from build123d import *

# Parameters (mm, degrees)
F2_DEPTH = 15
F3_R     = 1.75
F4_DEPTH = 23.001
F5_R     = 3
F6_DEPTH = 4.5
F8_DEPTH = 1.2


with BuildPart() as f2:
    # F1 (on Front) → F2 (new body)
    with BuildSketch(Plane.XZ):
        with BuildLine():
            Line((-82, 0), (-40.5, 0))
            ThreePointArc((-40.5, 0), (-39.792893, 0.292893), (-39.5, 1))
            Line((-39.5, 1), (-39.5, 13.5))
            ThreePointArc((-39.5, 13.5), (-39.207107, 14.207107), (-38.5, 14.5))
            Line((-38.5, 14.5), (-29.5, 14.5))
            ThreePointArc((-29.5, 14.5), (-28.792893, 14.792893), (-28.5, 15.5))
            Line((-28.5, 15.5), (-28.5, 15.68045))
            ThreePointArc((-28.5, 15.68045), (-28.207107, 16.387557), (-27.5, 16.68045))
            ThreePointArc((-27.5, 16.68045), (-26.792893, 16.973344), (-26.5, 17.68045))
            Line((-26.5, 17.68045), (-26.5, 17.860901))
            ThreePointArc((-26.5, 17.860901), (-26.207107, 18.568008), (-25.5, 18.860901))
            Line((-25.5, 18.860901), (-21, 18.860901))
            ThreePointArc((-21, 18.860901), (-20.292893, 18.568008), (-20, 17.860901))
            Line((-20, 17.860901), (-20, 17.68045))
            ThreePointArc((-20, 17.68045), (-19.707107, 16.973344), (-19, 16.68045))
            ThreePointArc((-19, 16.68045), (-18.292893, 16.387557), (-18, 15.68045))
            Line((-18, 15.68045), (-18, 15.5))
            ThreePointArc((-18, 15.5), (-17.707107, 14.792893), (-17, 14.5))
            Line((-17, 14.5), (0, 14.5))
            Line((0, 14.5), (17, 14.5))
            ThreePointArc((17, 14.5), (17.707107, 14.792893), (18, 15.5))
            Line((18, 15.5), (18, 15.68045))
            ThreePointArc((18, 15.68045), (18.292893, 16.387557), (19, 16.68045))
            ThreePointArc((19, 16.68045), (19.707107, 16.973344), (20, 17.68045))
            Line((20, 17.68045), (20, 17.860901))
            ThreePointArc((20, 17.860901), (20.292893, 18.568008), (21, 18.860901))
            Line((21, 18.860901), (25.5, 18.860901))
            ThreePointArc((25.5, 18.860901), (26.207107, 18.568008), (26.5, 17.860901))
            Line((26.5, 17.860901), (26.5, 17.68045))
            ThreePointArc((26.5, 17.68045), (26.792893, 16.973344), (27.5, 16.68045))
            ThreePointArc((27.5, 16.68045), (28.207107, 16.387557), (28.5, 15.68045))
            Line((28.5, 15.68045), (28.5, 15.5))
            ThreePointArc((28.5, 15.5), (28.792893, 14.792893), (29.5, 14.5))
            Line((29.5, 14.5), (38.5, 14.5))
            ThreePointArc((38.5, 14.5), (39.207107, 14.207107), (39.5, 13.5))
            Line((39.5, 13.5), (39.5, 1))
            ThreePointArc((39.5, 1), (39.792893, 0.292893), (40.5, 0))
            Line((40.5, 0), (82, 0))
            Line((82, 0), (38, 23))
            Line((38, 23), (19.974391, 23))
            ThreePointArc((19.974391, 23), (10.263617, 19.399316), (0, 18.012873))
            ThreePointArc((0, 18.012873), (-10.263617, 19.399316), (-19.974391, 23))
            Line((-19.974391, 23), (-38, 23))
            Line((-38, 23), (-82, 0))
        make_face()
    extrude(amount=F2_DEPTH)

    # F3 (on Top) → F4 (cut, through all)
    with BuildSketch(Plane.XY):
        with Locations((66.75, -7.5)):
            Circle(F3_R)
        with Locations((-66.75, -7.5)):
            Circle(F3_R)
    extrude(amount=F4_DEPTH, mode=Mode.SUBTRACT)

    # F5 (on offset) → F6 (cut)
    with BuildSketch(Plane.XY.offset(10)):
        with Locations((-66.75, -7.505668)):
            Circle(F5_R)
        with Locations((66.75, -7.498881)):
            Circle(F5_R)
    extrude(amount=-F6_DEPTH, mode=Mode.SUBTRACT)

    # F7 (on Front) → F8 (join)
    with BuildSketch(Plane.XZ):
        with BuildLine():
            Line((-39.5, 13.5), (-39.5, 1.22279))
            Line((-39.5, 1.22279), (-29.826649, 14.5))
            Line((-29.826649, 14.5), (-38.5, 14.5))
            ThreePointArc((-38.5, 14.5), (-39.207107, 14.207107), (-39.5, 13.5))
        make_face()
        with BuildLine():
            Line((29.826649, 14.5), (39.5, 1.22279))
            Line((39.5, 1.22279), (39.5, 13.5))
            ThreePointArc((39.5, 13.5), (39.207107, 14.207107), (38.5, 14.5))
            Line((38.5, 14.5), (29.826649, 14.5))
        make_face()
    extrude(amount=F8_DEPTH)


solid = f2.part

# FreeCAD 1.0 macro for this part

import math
import FreeCAD as App
import Part
import Sketcher

V = App.Vector

doc = App.newDocument("Part")
body = doc.addObject("PartDesign::Body", "Body")

sketch1 = body.newObject("Sketcher::SketchObject", "Sketch")
sketch1.AttachmentSupport = (doc.getObject("XZ_Plane"), [""])
sketch1.MapMode = "FlatFace"
sketch1.addGeometry([
    Part.LineSegment(V(-82, 0, 0), V(-40.5, 0, 0)),
    Part.ArcOfCircle(Part.Circle(V(-40.499999, 0.999999, 0), V(0, 0, 1), 0.999999), math.radians(-90.000043), math.radians(0.000043)),
    Part.LineSegment(V(-39.5, 1, 0), V(-39.5, 13.5, 0)),
    Part.ArcOfCircle(Part.Circle(V(-38.500001, 13.500001, 0), V(0, 0, 1), 0.999999), math.radians(89.999957), math.radians(180.000043)),
    Part.LineSegment(V(-38.5, 14.5, 0), V(-29.5, 14.5, 0)),
    Part.ArcOfCircle(Part.Circle(V(-29.499999, 15.499999, 0), V(0, 0, 1), 0.999999), math.radians(-90.000043), math.radians(0.000043)),
    Part.LineSegment(V(-28.5, 15.5, 0), V(-28.5, 15.68045, 0)),
    Part.ArcOfCircle(Part.Circle(V(-27.500001, 15.680451, 0), V(0, 0, 1), 0.999999), math.radians(89.999957), math.radians(180.000043)),
    Part.ArcOfCircle(Part.Circle(V(-27.500001, 17.680451, 0), V(0, 0, 1), 1.000001), math.radians(-89.999945), math.radians(-0.000055)),
    Part.LineSegment(V(-26.5, 17.68045, 0), V(-26.5, 17.860901, 0)),
    Part.ArcOfCircle(Part.Circle(V(-25.500001, 17.860902, 0), V(0, 0, 1), 0.999999), math.radians(89.999957), math.radians(180.000043)),
    Part.LineSegment(V(-25.5, 18.860901, 0), V(-21, 18.860901, 0)),
    Part.ArcOfCircle(Part.Circle(V(-20.999999, 17.860902, 0), V(0, 0, 1), 0.999999), math.radians(-0.000043), math.radians(90.000043)),
    Part.LineSegment(V(-20, 17.860901, 0), V(-20, 17.68045, 0)),
    Part.ArcOfCircle(Part.Circle(V(-18.999999, 17.680451, 0), V(0, 0, 1), 1.000001), math.radians(-179.999945), math.radians(-90.000055)),
    Part.ArcOfCircle(Part.Circle(V(-18.999999, 15.680451, 0), V(0, 0, 1), 0.999999), math.radians(-0.000043), math.radians(90.000043)),
    Part.LineSegment(V(-18, 15.68045, 0), V(-18, 15.5, 0)),
    Part.ArcOfCircle(Part.Circle(V(-17.000001, 15.499999, 0), V(0, 0, 1), 0.999999), math.radians(179.999957), math.radians(270.000043)),
    Part.LineSegment(V(-17, 14.5, 0), V(17, 14.5, 0)),
    Part.ArcOfCircle(Part.Circle(V(17.000001, 15.499999, 0), V(0, 0, 1), 0.999999), math.radians(-90.000043), math.radians(0.000043)),
    Part.LineSegment(V(18, 15.5, 0), V(18, 15.68045, 0)),
    Part.ArcOfCircle(Part.Circle(V(18.999999, 15.680451, 0), V(0, 0, 1), 0.999999), math.radians(89.999957), math.radians(180.000043)),
    Part.ArcOfCircle(Part.Circle(V(18.999999, 17.680451, 0), V(0, 0, 1), 1.000001), math.radians(-89.999945), math.radians(-0.000055)),
    Part.LineSegment(V(20, 17.68045, 0), V(20, 17.860901, 0)),
    Part.ArcOfCircle(Part.Circle(V(20.999999, 17.860902, 0), V(0, 0, 1), 0.999999), math.radians(89.999957), math.radians(180.000043)),
    Part.LineSegment(V(21, 18.860901, 0), V(25.5, 18.860901, 0)),
    Part.ArcOfCircle(Part.Circle(V(25.500001, 17.860902, 0), V(0, 0, 1), 0.999999), math.radians(-0.000043), math.radians(90.000043)),
    Part.LineSegment(V(26.5, 17.860901, 0), V(26.5, 17.68045, 0)),
    Part.ArcOfCircle(Part.Circle(V(27.500001, 17.680451, 0), V(0, 0, 1), 1.000001), math.radians(-179.999945), math.radians(-90.000055)),
    Part.ArcOfCircle(Part.Circle(V(27.500001, 15.680451, 0), V(0, 0, 1), 0.999999), math.radians(-0.000043), math.radians(90.000043)),
    Part.LineSegment(V(28.5, 15.68045, 0), V(28.5, 15.5, 0)),
    Part.ArcOfCircle(Part.Circle(V(29.499999, 15.499999, 0), V(0, 0, 1), 0.999999), math.radians(179.999957), math.radians(270.000043)),
    Part.LineSegment(V(29.5, 14.5, 0), V(38.5, 14.5, 0)),
    Part.ArcOfCircle(Part.Circle(V(38.500001, 13.500001, 0), V(0, 0, 1), 0.999999), math.radians(-0.000043), math.radians(90.000043)),
    Part.LineSegment(V(39.5, 13.5, 0), V(39.5, 1, 0)),
    Part.ArcOfCircle(Part.Circle(V(40.499999, 0.999999, 0), V(0, 0, 1), 0.999999), math.radians(179.999957), math.radians(270.000043)),
    Part.LineSegment(V(40.5, 0, 0), V(82, 0, 0)),
    Part.LineSegment(V(82, 0, 0), V(38, 23, 0)),
    Part.LineSegment(V(38, 23, 0), V(19.974391, 23, 0)),
    Part.ArcOfCircle(Part.Circle(V(-1.121656, 64.999496, 0), V(0, 0, 1), 47.00001), math.radians(-88.632506), math.radians(-63.329949)),
    Part.ArcOfCircle(Part.Circle(V(1.121656, 64.999496, 0), V(0, 0, 1), 47.00001), math.radians(-116.670051), math.radians(-91.367494)),
    Part.LineSegment(V(-19.974391, 23, 0), V(-38, 23, 0)),
    Part.LineSegment(V(-38, 23, 0), V(-82, 0, 0)),
], False)
sketch1.addConstraint([
    Sketcher.Constraint("Tangent", 0, 2, 1, 1),
    Sketcher.Constraint("Tangent", 1, 2, 2, 1),
    Sketcher.Constraint("Tangent", 2, 2, 3, 2),
    Sketcher.Constraint("Tangent", 3, 1, 4, 1),
    Sketcher.Constraint("Tangent", 4, 2, 5, 1),
    Sketcher.Constraint("Tangent", 5, 2, 6, 1),
    Sketcher.Constraint("Tangent", 6, 2, 7, 2),
    Sketcher.Constraint("Tangent", 7, 1, 8, 1),
    Sketcher.Constraint("Tangent", 8, 2, 9, 1),
    Sketcher.Constraint("Tangent", 9, 2, 10, 2),
    Sketcher.Constraint("Tangent", 10, 1, 11, 1),
    Sketcher.Constraint("Tangent", 11, 2, 12, 2),
    Sketcher.Constraint("Tangent", 12, 1, 13, 1),
    Sketcher.Constraint("Tangent", 13, 2, 14, 1),
    Sketcher.Constraint("Tangent", 14, 2, 15, 2),
    Sketcher.Constraint("Tangent", 15, 1, 16, 1),
    Sketcher.Constraint("Tangent", 16, 2, 17, 1),
    Sketcher.Constraint("Tangent", 17, 2, 18, 1),
    Sketcher.Constraint("Tangent", 18, 2, 19, 1),
    Sketcher.Constraint("Tangent", 19, 2, 20, 1),
    Sketcher.Constraint("Tangent", 20, 2, 21, 2),
    Sketcher.Constraint("Tangent", 21, 1, 22, 1),
    Sketcher.Constraint("Tangent", 22, 2, 23, 1),
    Sketcher.Constraint("Tangent", 23, 2, 24, 2),
    Sketcher.Constraint("Tangent", 24, 1, 25, 1),
    Sketcher.Constraint("Tangent", 25, 2, 26, 2),
    Sketcher.Constraint("Tangent", 26, 1, 27, 1),
    Sketcher.Constraint("Tangent", 27, 2, 28, 1),
    Sketcher.Constraint("Tangent", 28, 2, 29, 2),
    Sketcher.Constraint("Tangent", 29, 1, 30, 1),
    Sketcher.Constraint("Tangent", 30, 2, 31, 1),
    Sketcher.Constraint("Tangent", 31, 2, 32, 1),
    Sketcher.Constraint("Tangent", 32, 2, 33, 2),
    Sketcher.Constraint("Tangent", 33, 1, 34, 1),
    Sketcher.Constraint("Tangent", 34, 2, 35, 1),
    Sketcher.Constraint("Tangent", 35, 2, 36, 1),
    Sketcher.Constraint("Coincident", 36, 2, 37, 1),
    Sketcher.Constraint("Coincident", 37, 2, 38, 1),
    Sketcher.Constraint("Coincident", 38, 2, 39, 2),
    Sketcher.Constraint("Coincident", 39, 1, 40, 2),
    Sketcher.Constraint("Coincident", 40, 1, 41, 1),
    Sketcher.Constraint("Coincident", 41, 2, 42, 1),
    Sketcher.Constraint("Coincident", 42, 2, 0, 1),
    Sketcher.Constraint("Horizontal", 0),
    Sketcher.Constraint("Vertical", 2),
    Sketcher.Constraint("Horizontal", 4),
    Sketcher.Constraint("Vertical", 6),
    Sketcher.Constraint("Vertical", 9),
    Sketcher.Constraint("Horizontal", 11),
    Sketcher.Constraint("Vertical", 13),
    Sketcher.Constraint("Vertical", 16),
    Sketcher.Constraint("Horizontal", 18),
    Sketcher.Constraint("Vertical", 20),
    Sketcher.Constraint("Vertical", 23),
    Sketcher.Constraint("Horizontal", 25),
    Sketcher.Constraint("Vertical", 27),
    Sketcher.Constraint("Vertical", 30),
    Sketcher.Constraint("Horizontal", 32),
    Sketcher.Constraint("Vertical", 34),
    Sketcher.Constraint("Horizontal", 36),
    Sketcher.Constraint("Horizontal", 38),
    Sketcher.Constraint("Horizontal", 41),
    Sketcher.Constraint("Equal", 1, 3),
    Sketcher.Constraint("Equal", 3, 5),
    Sketcher.Constraint("Equal", 5, 7),
    Sketcher.Constraint("Equal", 7, 8),
    Sketcher.Constraint("Equal", 8, 10),
    Sketcher.Constraint("Equal", 10, 12),
    Sketcher.Constraint("Equal", 12, 14),
    Sketcher.Constraint("Equal", 14, 15),
    Sketcher.Constraint("Equal", 15, 17),
    Sketcher.Constraint("Equal", 17, 19),
    Sketcher.Constraint("Equal", 19, 21),
    Sketcher.Constraint("Equal", 21, 22),
    Sketcher.Constraint("Equal", 22, 24),
    Sketcher.Constraint("Equal", 24, 26),
    Sketcher.Constraint("Equal", 26, 28),
    Sketcher.Constraint("Equal", 28, 29),
    Sketcher.Constraint("Equal", 29, 31),
    Sketcher.Constraint("Equal", 31, 33),
    Sketcher.Constraint("Equal", 33, 35),
    Sketcher.Constraint("Equal", 39, 40),
    Sketcher.Constraint("Symmetric", 0, 2, 35, 2, -1, 1),
    Sketcher.Constraint("Symmetric", 15, 3, 21, 3, -2),
    Sketcher.Constraint("Symmetric", 12, 3, 24, 3, -2),
    Sketcher.Constraint("Symmetric", 8, 3, 28, 3, -2),
    Sketcher.Constraint("Symmetric", 5, 3, 31, 3, -2),
    Sketcher.Constraint("Symmetric", 39, 3, 40, 3, -2),
    Sketcher.Constraint("Symmetric", 37, 2, 41, 2, -2),
    Sketcher.Constraint("Symmetric", 36, 2, 42, 2, -2),
    Sketcher.Constraint("Horizontal", 8, 3, 14, 3),
    Sketcher.Constraint("Horizontal", 5, 3, 17, 3),
    Sketcher.Constraint("Vertical", 7, 3, 8, 3),
    Sketcher.Constraint("Vertical", 14, 3, 15, 3),
    Sketcher.Constraint("Equal", 6, 9),
    Sketcher.Constraint("Radius", 1, 0.999999),
    Sketcher.Constraint("DistanceX", 4, 1, 4, 2, 9.0),
    Sketcher.Constraint("DistanceX", 18, 1, 18, 2, 34.0),
    Sketcher.Constraint("DistanceX", 0, 1, 0, 2, 41.5),
    Sketcher.Constraint("DistanceX", 11, 1, 11, 2, 4.5),
    Sketcher.Constraint("DistanceY", 2, 1, 2, 2, 12.5),
    Sketcher.Constraint("DistanceX", -1, 1, 37, 2, 38.0),
    Sketcher.Constraint("DistanceY", -1, 1, 37, 2, 23.0),
    Sketcher.Constraint("Radius", 39, 47.00001),
    Sketcher.Constraint("DistanceX", 38, 2, 38, 1, 18.025609),
    Sketcher.Constraint("DistanceY", 6, 1, 6, 2, 0.18045),
    Sketcher.Constraint("DistanceX", 39, 3, -1, 1, 1.121656),
])
pad1 = body.newObject("PartDesign::Pad", "Pad")
pad1.Profile = sketch1
pad1.Length = 15

sketch2 = body.newObject("Sketcher::SketchObject", "Sketch001")
sketch2.AttachmentSupport = (doc.getObject("XY_Plane"), [""])
sketch2.MapMode = "FlatFace"
sketch2.addGeometry([
    Part.Circle(V(66.75, -7.5, 0), V(0, 0, 1), 1.75),
    Part.Circle(V(-66.75, -7.5, 0), V(0, 0, 1), 1.75),
], False)
sketch2.addConstraint([
    Sketcher.Constraint("Equal", 0, 1),
    Sketcher.Constraint("Symmetric", 0, 3, 1, 3, -2),
    Sketcher.Constraint("Diameter", 0, 3.5),
    Sketcher.Constraint("DistanceY", 0, 3, -1, 1, 7.5),
    Sketcher.Constraint("DistanceX", 1, 3, 0, 3, 133.5),
])
pocket1 = body.newObject("PartDesign::Pocket", "Pocket")
pocket1.Profile = sketch2
pocket1.Type = "ThroughAll"
pocket1.Reversed = True

sketch3 = body.newObject("Sketcher::SketchObject", "Sketch002")
sketch3.AttachmentSupport = (doc.getObject("XY_Plane"), [""])
sketch3.MapMode = "FlatFace"
sketch3.AttachmentOffset = App.Placement(V(0, 0, 10), App.Rotation())
sketch3.addGeometry([
    Part.Circle(V(-66.75, -7.505668, 0), V(0, 0, 1), 3),
    Part.Circle(V(66.75, -7.498881, 0), V(0, 0, 1), 3),
], False)
sketch3.addConstraint([
    Sketcher.Constraint("Equal", 0, 1),
    Sketcher.Constraint("Diameter", 0, 6.0),
    Sketcher.Constraint("DistanceX", 0, 3, 1, 3, 133.5),
    Sketcher.Constraint("DistanceX", 0, 3, -1, 1, 66.75),
    Sketcher.Constraint("DistanceY", 1, 3, -1, 1, 7.498881),
    Sketcher.Constraint("DistanceY", 0, 3, -1, 1, 7.505668),
])
pocket2 = body.newObject("PartDesign::Pocket", "Pocket001")
pocket2.Profile = sketch3
pocket2.Length = 4.5

sketch4 = body.newObject("Sketcher::SketchObject", "Sketch003")
sketch4.AttachmentSupport = (doc.getObject("XZ_Plane"), [""])
sketch4.MapMode = "FlatFace"
sketch4.addGeometry([
    Part.LineSegment(V(-39.5, 13.5, 0), V(-39.5, 1.22279, 0)),
    Part.LineSegment(V(-39.5, 1.22279, 0), V(-29.826649, 14.5, 0)),
    Part.LineSegment(V(-29.826649, 14.5, 0), V(-38.5, 14.5, 0)),
    Part.ArcOfCircle(Part.Circle(V(-38.500001, 13.500001, 0), V(0, 0, 1), 0.999999), math.radians(89.999957), math.radians(180.000043)),
    Part.LineSegment(V(29.826649, 14.5, 0), V(39.5, 1.22279, 0)),
    Part.LineSegment(V(39.5, 1.22279, 0), V(39.5, 13.5, 0)),
    Part.ArcOfCircle(Part.Circle(V(38.500001, 13.500001, 0), V(0, 0, 1), 0.999999), math.radians(-0.000043), math.radians(90.000043)),
    Part.LineSegment(V(38.5, 14.5, 0), V(29.826649, 14.5, 0)),
], False)
sketch4.addConstraint([
    Sketcher.Constraint("Coincident", 0, 2, 1, 1),
    Sketcher.Constraint("Coincident", 1, 2, 2, 1),
    Sketcher.Constraint("Tangent", 2, 2, 3, 1),
    Sketcher.Constraint("Tangent", 3, 2, 0, 1),
    Sketcher.Constraint("Coincident", 4, 2, 5, 1),
    Sketcher.Constraint("Tangent", 5, 2, 6, 1),
    Sketcher.Constraint("Tangent", 6, 2, 7, 1),
    Sketcher.Constraint("Coincident", 7, 2, 4, 1),
    Sketcher.Constraint("Vertical", 0),
    Sketcher.Constraint("Horizontal", 2),
    Sketcher.Constraint("Vertical", 5),
    Sketcher.Constraint("Horizontal", 7),
    Sketcher.Constraint("Equal", 3, 6),
    Sketcher.Constraint("Symmetric", 3, 3, 6, 3, -2),
    Sketcher.Constraint("Horizontal", 0, 2, 4, 2),
    Sketcher.Constraint("Equal", 2, 7),
    Sketcher.Constraint("Radius", 3, 0.999999),
    Sketcher.Constraint("DistanceX", 3, 3, 6, 3, 77.000001),
    Sketcher.Constraint("DistanceY", -1, 1, 3, 3, 13.500001),
    Sketcher.Constraint("DistanceX", 2, 2, 2, 1, 8.673351),
    Sketcher.Constraint("DistanceY", 0, 2, 0, 1, 12.27721),
])
pad2 = body.newObject("PartDesign::Pad", "Pad001")
pad2.Profile = sketch4
pad2.Length = 1.2

doc.recompute()
